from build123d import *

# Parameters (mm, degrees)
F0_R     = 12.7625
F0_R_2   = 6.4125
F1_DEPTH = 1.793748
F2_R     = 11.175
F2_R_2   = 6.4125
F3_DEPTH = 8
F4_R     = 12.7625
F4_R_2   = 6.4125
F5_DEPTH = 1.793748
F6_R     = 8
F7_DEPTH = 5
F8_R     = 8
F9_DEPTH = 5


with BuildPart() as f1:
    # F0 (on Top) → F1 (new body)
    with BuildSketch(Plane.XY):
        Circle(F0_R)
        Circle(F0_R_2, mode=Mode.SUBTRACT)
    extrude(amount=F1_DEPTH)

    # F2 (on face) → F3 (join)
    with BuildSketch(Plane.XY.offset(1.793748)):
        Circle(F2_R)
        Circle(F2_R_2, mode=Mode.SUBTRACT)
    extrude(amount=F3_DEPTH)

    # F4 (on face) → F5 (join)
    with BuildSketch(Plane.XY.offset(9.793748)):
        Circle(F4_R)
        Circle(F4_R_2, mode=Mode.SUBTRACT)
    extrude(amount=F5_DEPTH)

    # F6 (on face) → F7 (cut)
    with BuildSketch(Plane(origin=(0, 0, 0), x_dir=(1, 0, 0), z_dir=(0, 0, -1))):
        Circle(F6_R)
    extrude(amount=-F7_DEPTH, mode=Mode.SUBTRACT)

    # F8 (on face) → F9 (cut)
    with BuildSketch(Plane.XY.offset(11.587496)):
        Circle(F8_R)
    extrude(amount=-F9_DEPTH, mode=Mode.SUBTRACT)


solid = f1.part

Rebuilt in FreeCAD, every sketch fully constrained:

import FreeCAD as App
import Part
import Sketcher

V = App.Vector

doc = App.newDocument("Part")
body = doc.addObject("PartDesign::Body", "Body")

# Sketch on XY plane
sketch1 = doc.addObject("Sketcher::SketchObject", "Sketch")
body.addObject(sketch1)
sketch1.AttachmentSupport = (doc.XY_Plane, [""])
sketch1.MapMode = "FlatFace"
sketch1.addGeometry(Part.Circle(V(0, 0, 0), V(0, 0, 1), 12.7625), False)
sketch1.addGeometry(Part.Circle(V(0, 0, 0), V(0, 0, 1), 6.4125), False)
sketch1.addConstraint(Sketcher.Constraint("Coincident", 0, 3, -1, 1))
sketch1.addConstraint(Sketcher.Constraint("Coincident", 1, 3, -1, 1))
sketch1.addConstraint(Sketcher.Constraint("Diameter", 0, 25.525))
sketch1.addConstraint(Sketcher.Constraint("Diameter", 1, 12.825))
pad1 = doc.addObject("PartDesign::Pad", "Pad")
body.addObject(pad1)
pad1.Profile = sketch1
pad1.Length = 1.793748

# Sketch on XY plane
sketch2 = doc.addObject("Sketcher::SketchObject", "Sketch001")
body.addObject(sketch2)
sketch2.AttachmentSupport = (doc.XY_Plane, [""])
sketch2.MapMode = "FlatFace"
sketch2.AttachmentOffset = App.Placement(V(0, 0, 1.793748), App.Rotation())
sketch2.addGeometry(Part.Circle(V(0, 0, 0), V(0, 0, 1), 11.175), False)
sketch2.addGeometry(Part.Circle(V(0, 0, 0), V(0, 0, 1), 6.4125), False)
sketch2.addConstraint(Sketcher.Constraint("Coincident", 0, 3, -1, 1))
sketch2.addConstraint(Sketcher.Constraint("Coincident", 1, 3, -1, 1))
sketch2.addConstraint(Sketcher.Constraint("Diameter", 0, 22.35))
sketch2.addConstraint(Sketcher.Constraint("Diameter", 1, 12.825))
pad2 = doc.addObject("PartDesign::Pad", "Pad001")
body.addObject(pad2)
pad2.Profile = sketch2
pad2.Length = 8

# Sketch on XY plane
sketch3 = doc.addObject("Sketcher::SketchObject", "Sketch002")
body.addObject(sketch3)
sketch3.AttachmentSupport = (doc.XY_Plane, [""])
sketch3.MapMode = "FlatFace"
sketch3.AttachmentOffset = App.Placement(V(0, 0, 9.793748), App.Rotation())
sketch3.addGeometry(Part.Circle(V(0, 0, 0), V(0, 0, 1), 12.7625), False)
sketch3.addGeometry(Part.Circle(V(0, 0, 0), V(0, 0, 1), 6.4125), False)
sketch3.addConstraint(Sketcher.Constraint("Coincident", 0, 3, -1, 1))
sketch3.addConstraint(Sketcher.Constraint("Coincident", 1, 3, -1, 1))
sketch3.addConstraint(Sketcher.Constraint("Diameter", 0, 25.525))
sketch3.addConstraint(Sketcher.Constraint("Diameter", 1, 12.825))
pad3 = doc.addObject("PartDesign::Pad", "Pad002")
body.addObject(pad3)
pad3.Profile = sketch3
pad3.Length = 1.793748

# Sketch on XY plane
sketch4 = doc.addObject("Sketcher::SketchObject", "Sketch003")
body.addObject(sketch4)
sketch4.AttachmentSupport = (doc.XY_Plane, [""])
sketch4.MapMode = "FlatFace"
sketch4.addGeometry(Part.Circle(V(0, 0, 0), V(0, 0, 1), 8), False)
sketch4.addConstraint(Sketcher.Constraint("Coincident", 0, 3, -1, 1))
sketch4.addConstraint(Sketcher.Constraint("Diameter", 0, 16.0))
pocket1 = doc.addObject("PartDesign::Pocket", "Pocket")
body.addObject(pocket1)
pocket1.Profile = sketch4
pocket1.Length = 5
pocket1.Reversed = True

# Sketch on XY plane
sketch5 = doc.addObject("Sketcher::SketchObject", "Sketch004")
body.addObject(sketch5)
sketch5.AttachmentSupport = (doc.XY_Plane, [""])
sketch5.MapMode = "FlatFace"
sketch5.AttachmentOffset = App.Placement(V(0, 0, 11.587496), App.Rotation())
sketch5.addGeometry(Part.Circle(V(0, 0, 0), V(0, 0, 1), 8), False)
sketch5.addConstraint(Sketcher.Constraint("Coincident", 0, 3, -1, 1))
sketch5.addConstraint(Sketcher.Constraint("Diameter", 0, 16.0))
pocket2 = doc.addObject("PartDesign::Pocket", "Pocket001")
body.addObject(pocket2)
pocket2.Profile = sketch5
pocket2.Length = 5

doc.recompute()
